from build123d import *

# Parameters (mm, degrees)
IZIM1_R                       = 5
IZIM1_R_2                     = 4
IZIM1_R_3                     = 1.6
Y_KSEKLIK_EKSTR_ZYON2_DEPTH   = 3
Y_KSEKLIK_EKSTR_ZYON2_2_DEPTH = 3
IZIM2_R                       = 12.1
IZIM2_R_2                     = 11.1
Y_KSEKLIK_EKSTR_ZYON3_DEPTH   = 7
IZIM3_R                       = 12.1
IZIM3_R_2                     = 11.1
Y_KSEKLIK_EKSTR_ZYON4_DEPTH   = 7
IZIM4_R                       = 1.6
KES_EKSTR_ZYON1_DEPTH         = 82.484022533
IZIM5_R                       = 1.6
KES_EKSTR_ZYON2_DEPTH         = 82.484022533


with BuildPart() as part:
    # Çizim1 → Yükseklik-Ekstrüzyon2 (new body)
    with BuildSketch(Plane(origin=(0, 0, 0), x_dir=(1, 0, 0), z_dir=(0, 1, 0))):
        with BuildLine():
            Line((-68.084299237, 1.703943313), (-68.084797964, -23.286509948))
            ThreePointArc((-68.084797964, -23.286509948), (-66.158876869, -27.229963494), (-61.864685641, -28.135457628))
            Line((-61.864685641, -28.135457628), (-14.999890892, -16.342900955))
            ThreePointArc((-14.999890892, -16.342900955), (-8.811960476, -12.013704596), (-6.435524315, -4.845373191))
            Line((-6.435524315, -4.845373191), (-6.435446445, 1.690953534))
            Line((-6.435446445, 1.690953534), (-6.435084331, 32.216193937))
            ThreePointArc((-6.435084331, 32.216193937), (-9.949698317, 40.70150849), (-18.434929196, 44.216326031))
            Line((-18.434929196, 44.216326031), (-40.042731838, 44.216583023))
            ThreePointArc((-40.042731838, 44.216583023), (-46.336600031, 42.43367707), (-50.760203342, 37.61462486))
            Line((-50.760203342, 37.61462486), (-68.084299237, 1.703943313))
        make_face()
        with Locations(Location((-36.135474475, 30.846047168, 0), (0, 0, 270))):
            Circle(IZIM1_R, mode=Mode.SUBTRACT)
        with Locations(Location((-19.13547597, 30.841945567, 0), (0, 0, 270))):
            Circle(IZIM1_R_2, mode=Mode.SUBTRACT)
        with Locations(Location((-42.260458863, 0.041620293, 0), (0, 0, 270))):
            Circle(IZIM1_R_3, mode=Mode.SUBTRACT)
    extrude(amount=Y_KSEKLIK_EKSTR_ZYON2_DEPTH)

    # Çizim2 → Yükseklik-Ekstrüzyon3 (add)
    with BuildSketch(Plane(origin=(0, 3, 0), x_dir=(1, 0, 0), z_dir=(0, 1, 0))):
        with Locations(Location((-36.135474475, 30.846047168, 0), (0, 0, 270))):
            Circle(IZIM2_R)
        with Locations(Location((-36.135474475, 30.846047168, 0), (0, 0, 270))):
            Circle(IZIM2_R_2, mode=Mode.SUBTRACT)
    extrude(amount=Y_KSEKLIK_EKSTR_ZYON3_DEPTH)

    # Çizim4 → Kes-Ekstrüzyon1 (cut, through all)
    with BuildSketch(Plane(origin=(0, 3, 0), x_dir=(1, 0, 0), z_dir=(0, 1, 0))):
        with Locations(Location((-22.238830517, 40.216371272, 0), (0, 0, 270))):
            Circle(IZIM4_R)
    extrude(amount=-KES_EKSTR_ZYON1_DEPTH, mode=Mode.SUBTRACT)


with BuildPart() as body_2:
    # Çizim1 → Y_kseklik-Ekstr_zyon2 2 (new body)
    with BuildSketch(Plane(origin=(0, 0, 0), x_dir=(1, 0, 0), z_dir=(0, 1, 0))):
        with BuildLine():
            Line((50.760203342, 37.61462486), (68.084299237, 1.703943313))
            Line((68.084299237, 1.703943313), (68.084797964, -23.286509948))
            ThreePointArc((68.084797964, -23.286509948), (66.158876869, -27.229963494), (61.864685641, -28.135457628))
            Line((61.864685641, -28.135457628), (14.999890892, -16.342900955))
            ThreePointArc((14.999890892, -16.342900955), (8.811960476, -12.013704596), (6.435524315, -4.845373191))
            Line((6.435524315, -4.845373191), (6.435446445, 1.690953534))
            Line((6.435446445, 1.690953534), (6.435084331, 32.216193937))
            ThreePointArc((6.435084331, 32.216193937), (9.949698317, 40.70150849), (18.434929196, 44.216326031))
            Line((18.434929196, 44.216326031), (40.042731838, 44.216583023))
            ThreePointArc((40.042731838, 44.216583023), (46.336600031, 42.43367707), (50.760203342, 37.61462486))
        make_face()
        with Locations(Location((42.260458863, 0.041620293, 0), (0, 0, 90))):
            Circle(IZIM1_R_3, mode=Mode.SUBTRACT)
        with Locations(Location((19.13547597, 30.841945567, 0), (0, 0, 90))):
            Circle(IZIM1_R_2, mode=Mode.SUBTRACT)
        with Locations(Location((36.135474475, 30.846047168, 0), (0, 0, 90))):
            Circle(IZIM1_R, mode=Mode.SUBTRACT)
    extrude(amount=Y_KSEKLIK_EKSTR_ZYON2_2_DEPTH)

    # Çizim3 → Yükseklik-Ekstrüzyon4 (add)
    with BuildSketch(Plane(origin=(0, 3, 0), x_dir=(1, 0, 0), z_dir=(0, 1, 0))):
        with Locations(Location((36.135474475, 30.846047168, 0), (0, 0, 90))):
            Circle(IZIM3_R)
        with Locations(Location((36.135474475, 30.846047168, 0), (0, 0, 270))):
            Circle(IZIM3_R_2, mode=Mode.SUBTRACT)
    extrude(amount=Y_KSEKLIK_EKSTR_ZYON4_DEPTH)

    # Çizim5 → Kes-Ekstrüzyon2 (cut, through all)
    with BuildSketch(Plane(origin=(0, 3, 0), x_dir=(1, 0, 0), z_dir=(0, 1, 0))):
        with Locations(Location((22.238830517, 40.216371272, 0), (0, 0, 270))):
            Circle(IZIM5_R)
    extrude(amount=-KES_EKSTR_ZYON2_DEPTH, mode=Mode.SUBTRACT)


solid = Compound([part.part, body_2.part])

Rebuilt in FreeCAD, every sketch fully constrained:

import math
import FreeCAD as App
import Part
import Sketcher

V = App.Vector
Q = App.Units.Quantity

doc = App.newDocument("Part")
body = doc.addObject("PartDesign::Body", "Body")

# Sketch on XZ plane
sketch1 = body.newObject("Sketcher::SketchObject", "Sketch")
sketch1.AttachmentSupport = (doc.getObject("XZ_Plane"), [""])
sketch1.MapMode = "FlatFace"
sketch1.addGeometry([
    Part.LineSegment(V(-68.084299, -1.703943, 0), V(-68.084798, 23.28651, 0)),  # 0
    Part.ArcOfCircle(Part.Circle(V(-63.084798, 23.28661, 0), V(0, 0, 1), 5), math.radians(75.875928), math.radians(180.001143)),  # 1
    Part.LineSegment(V(-61.864686, 28.135458, 0), V(-14.999891, 16.342901, 0)),  # 2
    Part.ArcOfCircle(Part.Circle(V(-18.435524, 4.845231, 0), V(0, 0, 1), 12), math.radians(0.000681), math.radians(73.363262)),  # 3
    Part.LineSegment(V(-6.435524, 4.845373, 0), V(-6.435446, -1.690954, 0)),  # 4
    Part.LineSegment(V(-6.435446, -1.690954, 0), V(-6.435084, -32.216194, 0)),  # 5
    Part.ArcOfCircle(Part.Circle(V(-18.435075, -32.216336, 0), V(0, 0, 1), 11.99999), math.radians(-89.999306), math.radians(0.000677)),  # 6
    Part.LineSegment(V(-18.434929, -44.216326, 0), V(-40.042732, -44.216583, 0)),  # 7
    Part.ArcOfCircle(Part.Circle(V(-40.042874, -32.216582, 0), V(0, 0, 1), 12.000001), math.radians(-153.266782), math.radians(-89.999323)),  # 8
    Part.LineSegment(V(-50.760203, -37.614625, 0), V(-68.084299, -1.703943, 0)),  # 9
    Part.Circle(V(-42.260459, -0.04162, 0), V(0, 0, 1), 1.6),  # 10
    Part.Circle(V(-36.135474, -30.846047, 0), V(0, 0, 1), 5),  # 11
    Part.Circle(V(-19.135476, -30.841946, 0), V(0, 0, 1), 4),  # 12
], False)
sketch1.addConstraint([
    Sketcher.Constraint("Tangent", 0, 2, 1, 2),
    Sketcher.Constraint("Tangent", 1, 1, 2, 1),
    Sketcher.Constraint("Coincident", 2, 2, 3, 2),
    Sketcher.Constraint("Tangent", 3, 1, 4, 1),
    Sketcher.Constraint("Coincident", 4, 2, 5, 1),
    Sketcher.Constraint("Tangent", 5, 2, 6, 2),
    Sketcher.Constraint("Tangent", 6, 1, 7, 1),
    Sketcher.Constraint("Tangent", 7, 2, 8, 2),
    Sketcher.Constraint("Coincident", 8, 1, 9, 1),
    Sketcher.Constraint("Coincident", 9, 2, 0, 1),
    Sketcher.Constraint("Equal", 3, 8),
    Sketcher.Constraint("Equal", 1, 11),
    Sketcher.Constraint("Parallel", 4, 5),
    Sketcher.Constraint("Perpendicular", 5, 7),
    Sketcher.Constraint("Diameter", 11, Q("10 mm")),
    Sketcher.Constraint("Diameter", 12, Q("8 mm")),
    Sketcher.Constraint("Radius", 3, Q("12 mm")),
    Sketcher.Constraint("Diameter", 10, Q("3.2 mm")),
    Sketcher.Constraint("DistanceX", 11, 3, 12, 3, Q("16.999999 mm")),
    Sketcher.Constraint("Radius", 6, Q("11.99999 mm")),
    Sketcher.Constraint("Distance", 2, Q("48.325701 mm")),
    Sketcher.Constraint("DistanceY", -1, 1, 2, 2, Q("16.342901 mm")),
    Sketcher.Constraint("DistanceX", 9, 2, -1, 1, Q("68.084299 mm")),
    Sketcher.Constraint("DistanceX", 8, 3, 6, 3, Q("21.607799 mm")),
    Sketcher.Constraint("DistanceX", 8, 3, 11, 3, Q("3.907399 mm")),
    Sketcher.Constraint("DistanceY", 11, 3, 12, 3, Q("0.004102 mm")),
    Sketcher.Constraint("DistanceX", 0, 2, 9, 2, Q("0.000499 mm")),
    Sketcher.Constraint("DistanceY", 9, 2, 1, 1, Q("29.839401 mm")),
    Sketcher.Constraint("Distance", 5, Q("30.52524 mm")),
    Sketcher.Constraint("Distance", 9, Q("39.871059 mm")),
    Sketcher.Constraint("DistanceY", -1, 1, 1, 3, Q("23.28661 mm")),
    Sketcher.Constraint("DistanceY", -1, 1, 3, 3, Q("4.845231 mm")),
    Sketcher.Constraint("DistanceX", 10, 3, -1, 1, Q("42.260459 mm")),
    Sketcher.Constraint("DistanceY", 10, 3, -1, 1, Q("0.04162 mm")),
    Sketcher.Constraint("DistanceX", 6, 1, -1, 1, Q("18.434929 mm")),
    Sketcher.Constraint("DistanceY", 8, 3, 1, 3, Q("55.503192 mm")),
    Sketcher.Constraint("DistanceY", 6, 3, 11, 3, Q("1.370289 mm")),
])
pad1 = body.newObject("PartDesign::Pad", "Pad")
pad1.Profile = sketch1
pad1.Length = 3
pad1.Reversed = True

# Sketch on XZ plane
sketch2 = body.newObject("Sketcher::SketchObject", "Sketch001")
sketch2.AttachmentSupport = (doc.getObject("XZ_Plane"), [""])
sketch2.MapMode = "FlatFace"
sketch2.AttachmentOffset = App.Placement(V(0, 0, -3), App.Rotation())
sketch2.addGeometry([
    Part.Circle(V(-36.135474, -30.846047, 0), V(0, 0, 1), 12.1),
    Part.Circle(V(-36.135474, -30.846047, 0), V(0, 0, 1), 11.1),
], False)
sketch2.addConstraint([
    Sketcher.Constraint("Coincident", 1, 3, 0, 3),
    Sketcher.Constraint("Diameter", 0, Q("24.2 mm")),
    Sketcher.Constraint("Diameter", 1, Q("22.2 mm")),
    Sketcher.Constraint("DistanceX", 0, 3, -1, 1, Q("36.135474 mm")),
    Sketcher.Constraint("DistanceY", 0, 3, -1, 1, Q("30.846047 mm")),
])
pad2 = body.newObject("PartDesign::Pad", "Pad001")
pad2.Profile = sketch2
pad2.Length = 7
pad2.Reversed = True

# Sketch on XZ plane
sketch3 = body.newObject("Sketcher::SketchObject", "Sketch002")
sketch3.AttachmentSupport = (doc.getObject("XZ_Plane"), [""])
sketch3.MapMode = "FlatFace"
sketch3.AttachmentOffset = App.Placement(V(0, 0, -3), App.Rotation())
sketch3.addGeometry(Part.Circle(V(-22.238831, -40.216371, 0), V(0, 0, 1), 1.6), False)
sketch3.addConstraint([
    Sketcher.Constraint("Diameter", 0, Q("3.2 mm")),
    Sketcher.Constraint("DistanceX", 0, 3, -1, 1, Q("22.238831 mm")),
    Sketcher.Constraint("DistanceY", 0, 3, -1, 1, Q("40.216371 mm")),
])
pocket1 = body.newObject("PartDesign::Pocket", "Pocket")
pocket1.Profile = sketch3
pocket1.Type = "ThroughAll"
pocket1.Reversed = True
body2 = doc.addObject("PartDesign::Body", "Body001")

# Sketch on XZ plane
sketch4 = body2.newObject("Sketcher::SketchObject", "Sketch003")
sketch4.AttachmentSupport = (doc.getObject("XZ_Plane001"), [""])
sketch4.MapMode = "FlatFace"
sketch4.addGeometry([
    Part.LineSegment(V(68.084299, -1.703943, 0), V(50.760203, -37.614625, 0)),  # 0
    Part.ArcOfCircle(Part.Circle(V(40.042874, -32.216582, 0), V(0, 0, 1), 12.000001), math.radians(-90.000677), math.radians(-26.733218)),  # 1
    Part.LineSegment(V(40.042732, -44.216583, 0), V(18.434929, -44.216326, 0)),  # 2
    Part.ArcOfCircle(Part.Circle(V(18.435075, -32.216336, 0), V(0, 0, 1), 11.99999), math.radians(179.999323), math.radians(269.999306)),  # 3
    Part.LineSegment(V(6.435084, -32.216194, 0), V(6.435446, -1.690954, 0)),  # 4
    Part.LineSegment(V(6.435446, -1.690954, 0), V(6.435524, 4.845373, 0)),  # 5
    Part.ArcOfCircle(Part.Circle(V(18.435524, 4.845231, 0), V(0, 0, 1), 12), math.radians(106.636738), math.radians(179.999319)),  # 6
    Part.LineSegment(V(14.999891, 16.342901, 0), V(61.864686, 28.135458, 0)),  # 7
    Part.ArcOfCircle(Part.Circle(V(63.084798, 23.28661, 0), V(0, 0, 1), 5), math.radians(-0.001143), math.radians(104.124072)),  # 8
    Part.LineSegment(V(68.084798, 23.28651, 0), V(68.084299, -1.703943, 0)),  # 9
    Part.Circle(V(42.260459, -0.04162, 0), V(0, 0, 1), 1.6),  # 10
    Part.Circle(V(36.135474, -30.846047, 0), V(0, 0, 1), 5),  # 11
    Part.Circle(V(19.135476, -30.841946, 0), V(0, 0, 1), 4),  # 12
], False)
sketch4.addConstraint([
    Sketcher.Constraint("Coincident", 0, 2, 1, 2),
    Sketcher.Constraint("Tangent", 1, 1, 2, 1),
    Sketcher.Constraint("Tangent", 2, 2, 3, 2),
    Sketcher.Constraint("Tangent", 3, 1, 4, 1),
    Sketcher.Constraint("Coincident", 4, 2, 5, 1),
    Sketcher.Constraint("Tangent", 5, 2, 6, 2),
    Sketcher.Constraint("Coincident", 6, 1, 7, 1),
    Sketcher.Constraint("Tangent", 7, 2, 8, 2),
    Sketcher.Constraint("Tangent", 8, 1, 9, 1),
    Sketcher.Constraint("Coincident", 9, 2, 0, 1),
    Sketcher.Constraint("Equal", 1, 6),
    Sketcher.Constraint("Equal", 8, 11),
    Sketcher.Constraint("Perpendicular", 2, 4),
    Sketcher.Constraint("Parallel", 4, 5),
    Sketcher.Constraint("Diameter", 11, Q("10 mm")),
    Sketcher.Constraint("Diameter", 12, Q("8 mm")),
    Sketcher.Constraint("Radius", 1, Q("12.000001 mm")),
    Sketcher.Constraint("Diameter", 10, Q("3.2 mm")),
    Sketcher.Constraint("DistanceX", 12, 3, 11, 3, Q("16.999999 mm")),
    Sketcher.Constraint("Radius", 3, Q("11.99999 mm")),
    Sketcher.Constraint("Distance", 7, Q("48.325701 mm")),
    Sketcher.Constraint("DistanceY", -1, 1, 6, 1, Q("16.342901 mm")),
    Sketcher.Constraint("DistanceX", -1, 1, 9, 2, Q("68.084299 mm")),
    Sketcher.Constraint("DistanceX", 3, 3, 1, 3, Q("21.607799 mm")),
    Sketcher.Constraint("DistanceX", 11, 3, 1, 3, Q("3.907399 mm")),
    Sketcher.Constraint("DistanceY", 11, 3, 12, 3, Q("0.004102 mm")),
    Sketcher.Constraint("DistanceX", 9, 2, 8, 1, Q("0.000499 mm")),
    Sketcher.Constraint("DistanceY", 9, 2, 7, 2, Q("29.839401 mm")),
    Sketcher.Constraint("Distance", 0, Q("39.871059 mm")),
    Sketcher.Constraint("Distance", 4, Q("30.52524 mm")),
    Sketcher.Constraint("DistanceY", -1, 1, 6, 3, Q("4.845231 mm")),
    Sketcher.Constraint("DistanceY", -1, 1, 8, 3, Q("23.28661 mm")),
    Sketcher.Constraint("DistanceX", -1, 1, 10, 3, Q("42.260459 mm")),
    Sketcher.Constraint("DistanceY", 10, 3, -1, 1, Q("0.04162 mm")),
    Sketcher.Constraint("DistanceX", -1, 1, 1, 1, Q("40.042732 mm")),
    Sketcher.Constraint("DistanceY", 1, 3, 8, 3, Q("55.503192 mm")),
    Sketcher.Constraint("DistanceY", 3, 3, 11, 3, Q("1.370289 mm")),
])
pad3 = body2.newObject("PartDesign::Pad", "Pad002")
pad3.Profile = sketch4
pad3.Length = 3
pad3.Reversed = True

# Sketch on XZ plane
sketch5 = body2.newObject("Sketcher::SketchObject", "Sketch004")
sketch5.AttachmentSupport = (doc.getObject("XZ_Plane001"), [""])
sketch5.MapMode = "FlatFace"
sketch5.AttachmentOffset = App.Placement(V(0, 0, -3), App.Rotation())
sketch5.addGeometry([
    Part.Circle(V(36.135474, -30.846047, 0), V(0, 0, 1), 12.1),
    Part.Circle(V(36.135474, -30.846047, 0), V(0, 0, 1), 11.1),
], False)
sketch5.addConstraint([
    Sketcher.Constraint("Coincident", 1, 3, 0, 3),
    Sketcher.Constraint("Diameter", 0, Q("24.2 mm")),
    Sketcher.Constraint("Diameter", 1, Q("22.2 mm")),
    Sketcher.Constraint("DistanceX", -1, 1, 0, 3, Q("36.135474 mm")),
    Sketcher.Constraint("DistanceY", 0, 3, -1, 1, Q("30.846047 mm")),
])
pad4 = body2.newObject("PartDesign::Pad", "Pad003")
pad4.Profile = sketch5
pad4.Length = 7
pad4.Reversed = True

# Sketch on XZ plane
sketch6 = body2.newObject("Sketcher::SketchObject", "Sketch005")
sketch6.AttachmentSupport = (doc.getObject("XZ_Plane001"), [""])
sketch6.MapMode = "FlatFace"
sketch6.AttachmentOffset = App.Placement(V(0, 0, -3), App.Rotation())
sketch6.addGeometry(Part.Circle(V(22.238831, -40.216371, 0), V(0, 0, 1), 1.6), False)
sketch6.addConstraint([
    Sketcher.Constraint("Diameter", 0, Q("3.2 mm")),
    Sketcher.Constraint("DistanceX", -1, 1, 0, 3, Q("22.238831 mm")),
    Sketcher.Constraint("DistanceY", 0, 3, -1, 1, Q("40.216371 mm")),
])
pocket2 = body2.newObject("PartDesign::Pocket", "Pocket001")
pocket2.Profile = sketch6
pocket2.Type = "ThroughAll"
pocket2.Reversed = True

doc.recompute()
